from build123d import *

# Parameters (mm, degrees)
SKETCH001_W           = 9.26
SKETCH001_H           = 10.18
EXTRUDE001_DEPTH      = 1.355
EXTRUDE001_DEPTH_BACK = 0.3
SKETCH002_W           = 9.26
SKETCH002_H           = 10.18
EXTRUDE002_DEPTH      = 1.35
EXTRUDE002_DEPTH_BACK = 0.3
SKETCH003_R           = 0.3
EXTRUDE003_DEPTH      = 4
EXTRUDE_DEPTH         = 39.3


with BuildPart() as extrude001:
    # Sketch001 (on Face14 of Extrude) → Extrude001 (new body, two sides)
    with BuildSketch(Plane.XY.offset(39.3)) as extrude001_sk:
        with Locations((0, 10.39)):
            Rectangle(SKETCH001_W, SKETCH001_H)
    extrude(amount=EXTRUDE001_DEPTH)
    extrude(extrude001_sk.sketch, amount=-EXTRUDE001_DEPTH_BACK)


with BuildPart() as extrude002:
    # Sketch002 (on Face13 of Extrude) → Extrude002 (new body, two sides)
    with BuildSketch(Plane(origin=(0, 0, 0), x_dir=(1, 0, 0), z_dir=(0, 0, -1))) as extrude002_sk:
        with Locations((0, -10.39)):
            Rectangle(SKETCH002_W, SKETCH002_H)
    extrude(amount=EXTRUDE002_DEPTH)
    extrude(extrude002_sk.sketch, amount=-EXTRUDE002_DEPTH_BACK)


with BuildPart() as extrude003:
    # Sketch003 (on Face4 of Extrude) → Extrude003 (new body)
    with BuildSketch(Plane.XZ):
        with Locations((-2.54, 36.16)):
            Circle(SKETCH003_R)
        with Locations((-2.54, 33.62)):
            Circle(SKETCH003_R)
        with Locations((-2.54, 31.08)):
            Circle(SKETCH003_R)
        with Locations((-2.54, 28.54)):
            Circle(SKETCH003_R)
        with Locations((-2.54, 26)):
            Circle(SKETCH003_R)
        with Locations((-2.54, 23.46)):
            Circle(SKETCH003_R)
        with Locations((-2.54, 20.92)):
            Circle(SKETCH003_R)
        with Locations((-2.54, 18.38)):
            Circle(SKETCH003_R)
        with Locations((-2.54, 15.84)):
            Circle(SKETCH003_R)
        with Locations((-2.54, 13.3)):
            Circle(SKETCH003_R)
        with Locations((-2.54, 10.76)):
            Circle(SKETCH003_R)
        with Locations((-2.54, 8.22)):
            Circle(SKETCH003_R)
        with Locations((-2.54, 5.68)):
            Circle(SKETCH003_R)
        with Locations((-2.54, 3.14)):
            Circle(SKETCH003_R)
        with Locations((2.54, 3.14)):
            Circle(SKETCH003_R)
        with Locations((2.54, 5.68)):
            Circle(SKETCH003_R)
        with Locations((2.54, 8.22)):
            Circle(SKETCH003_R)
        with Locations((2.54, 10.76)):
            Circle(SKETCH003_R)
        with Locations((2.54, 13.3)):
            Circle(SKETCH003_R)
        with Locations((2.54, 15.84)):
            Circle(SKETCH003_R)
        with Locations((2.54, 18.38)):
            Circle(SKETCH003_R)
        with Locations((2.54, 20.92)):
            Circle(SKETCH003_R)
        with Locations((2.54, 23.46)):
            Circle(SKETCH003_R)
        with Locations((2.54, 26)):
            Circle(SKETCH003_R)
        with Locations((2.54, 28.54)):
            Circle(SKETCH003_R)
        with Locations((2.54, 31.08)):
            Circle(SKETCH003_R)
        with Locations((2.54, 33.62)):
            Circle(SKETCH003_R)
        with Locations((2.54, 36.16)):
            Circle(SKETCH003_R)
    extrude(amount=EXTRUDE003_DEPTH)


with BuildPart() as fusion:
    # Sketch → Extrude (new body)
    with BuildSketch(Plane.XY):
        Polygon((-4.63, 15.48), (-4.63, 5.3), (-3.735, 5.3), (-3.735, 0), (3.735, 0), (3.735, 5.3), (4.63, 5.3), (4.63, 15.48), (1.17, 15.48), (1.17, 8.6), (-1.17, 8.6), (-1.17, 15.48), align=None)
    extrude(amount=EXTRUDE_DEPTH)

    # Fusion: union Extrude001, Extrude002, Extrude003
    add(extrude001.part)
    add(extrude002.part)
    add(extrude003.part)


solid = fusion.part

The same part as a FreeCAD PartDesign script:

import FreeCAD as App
import Part
import Sketcher
from FreeCAD import Vector
Q = App.Units.Quantity

doc = App.newDocument("Part")
params = doc.addObject("Spreadsheet::Sheet", "Params")
for row, (alias, value) in enumerate([
    ("sketch1_width", "9.26 mm"),
    ("sketch1_height", "10.18 mm"),
    ("pad1_length", "1.355 mm"),
    ("pad1_length2", "0.3 mm"),
    ("sketch2_width", "9.26 mm"),
    ("sketch2_height", "10.18 mm"),
    ("pad2_length", "1.35 mm"),
    ("pad2_length2", "0.3 mm"),
    ("sketch3_diameter", "0.6 mm"),
    ("pad3_length", "4 mm"),
    ("sketch4_height", "5.3 mm"),
    ("sketch4_width", "7.47 mm"),
    ("sketch4_width2", "3.46 mm"),
    ("sketch4_width3", "2.34 mm"),
    ("sketch4_height2", "10.18 mm"),
    ("pad4_length", "39.3 mm"),
], start=1):
    params.set(f"A{row}", alias)
    params.set(f"B{row}", "=" + value)
    params.setAlias(f"B{row}", alias)

body = doc.addObject("PartDesign::Body", "Body")

# Sketch on XY plane
sketch1 = body.newObject("Sketcher::SketchObject", "Sketch")
sketch1.AttachmentSupport = (doc.getObject("XY_Plane"), [""])
sketch1.MapMode = "FlatFace"
sketch1.AttachmentOffset = App.Placement(Vector(0, 0, 39.3), App.Rotation())
sketch1.addGeometry([
    Part.LineSegment(Vector(-5, 15, 0), Vector(-5, 5, 0)),
    Part.LineSegment(Vector(-5, 5, 0), Vector(5, 5, 0)),
    Part.LineSegment(Vector(5, 5, 0), Vector(5, 15, 0)),
    Part.LineSegment(Vector(5, 15, 0), Vector(-5, 15, 0)),
], False)
sketch1.addConstraint([
    Sketcher.Constraint("Coincident", 0, 2, 1, 1),
    Sketcher.Constraint("Coincident", 1, 2, 2, 1),
    Sketcher.Constraint("Coincident", 2, 2, 3, 1),
    Sketcher.Constraint("Coincident", 3, 2, 0, 1),
    Sketcher.Constraint("Vertical", 0),
    Sketcher.Constraint("Horizontal", 1),
    Sketcher.Constraint("Vertical", 2),
    Sketcher.Constraint("Horizontal", 3),
    Sketcher.Constraint("DistanceX", 1, 1, 1, 2, Q("9.26 mm")),
    Sketcher.Constraint("DistanceY", 0, 2, 0, 1, Q("10.18 mm")),
    Sketcher.Constraint("DistanceY", -1, 1, 0, 2, Q("5.3 mm")),
    Sketcher.Constraint("DistanceX", 0, 2, -1, 1, Q("4.63 mm")),
])
sketch1.setExpression("Constraints[8]", "Params.sketch1_width")
sketch1.setExpression("Constraints[9]", "Params.sketch1_height")
pad1 = body.newObject("PartDesign::Pad", "Pad")
pad1.Profile = sketch1
pad1.Type = "TwoLengths"
pad1.setExpression("Length", "Params.pad1_length")
pad1.setExpression("Length2", "Params.pad1_length2")
body2 = doc.addObject("PartDesign::Body", "Body001")

# Sketch on XY plane
sketch2 = body2.newObject("Sketcher::SketchObject", "Sketch001")
sketch2.AttachmentSupport = (doc.getObject("XY_Plane001"), [""])
sketch2.MapMode = "FlatFace"
sketch2.addGeometry([
    Part.LineSegment(Vector(-5, 5, 0), Vector(-5, 15, 0)),
    Part.LineSegment(Vector(-5, 15, 0), Vector(5, 15, 0)),
    Part.LineSegment(Vector(5, 15, 0), Vector(5, 5, 0)),
    Part.LineSegment(Vector(5, 5, 0), Vector(-5, 5, 0)),
], False)
sketch2.addConstraint([
    Sketcher.Constraint("Coincident", 0, 2, 1, 1),
    Sketcher.Constraint("Coincident", 1, 2, 2, 1),
    Sketcher.Constraint("Coincident", 2, 2, 3, 1),
    Sketcher.Constraint("Coincident", 3, 2, 0, 1),
    Sketcher.Constraint("Vertical", 0),
    Sketcher.Constraint("Horizontal", 1),
    Sketcher.Constraint("Vertical", 2),
    Sketcher.Constraint("Horizontal", 3),
    Sketcher.Constraint("DistanceX", 1, 1, 1, 2, Q("9.26 mm")),
    Sketcher.Constraint("DistanceY", 0, 1, 0, 2, Q("10.18 mm")),
    Sketcher.Constraint("DistanceY", -1, 1, 2, 2, Q("5.3 mm")),
    Sketcher.Constraint("DistanceX", 0, 2, -1, 1, Q("4.63 mm")),
])
sketch2.setExpression("Constraints[8]", "Params.sketch2_width")
sketch2.setExpression("Constraints[9]", "Params.sketch2_height")
pad2 = body2.newObject("PartDesign::Pad", "Pad001")
pad2.Profile = sketch2
pad2.Type = "TwoLengths"
pad2.setExpression("Length", "Params.pad2_length")
pad2.setExpression("Length2", "Params.pad2_length2")
pad2.Reversed = True
body3 = doc.addObject("PartDesign::Body", "Body002")
body3.AllowCompound = True

# Sketch on XZ plane
sketch3 = body3.newObject("Sketcher::SketchObject", "Sketch002")
sketch3.AttachmentSupport = (doc.getObject("XZ_Plane002"), [""])
sketch3.MapMode = "FlatFace"
sketch3.addGeometry([
    Part.Circle(Vector(-2.54, 36.16, 0), Vector(0, 0, 1), 0.3),  # 0
    Part.Circle(Vector(-2.54, 33.62, 0), Vector(0, 0, 1), 0.3),  # 1
    Part.Circle(Vector(-2.54, 31.08, 0), Vector(0, 0, 1), 0.3),  # 2
    Part.Circle(Vector(-2.54, 28.54, 0), Vector(0, 0, 1), 0.3),  # 3
    Part.Circle(Vector(-2.54, 26, 0), Vector(0, 0, 1), 0.3),  # 4
    Part.Circle(Vector(-2.54, 23.46, 0), Vector(0, 0, 1), 0.3),  # 5
    Part.Circle(Vector(-2.54, 20.92, 0), Vector(0, 0, 1), 0.3),  # 6
    Part.Circle(Vector(-2.54, 18.38, 0), Vector(0, 0, 1), 0.3),  # 7
    Part.Circle(Vector(-2.54, 15.84, 0), Vector(0, 0, 1), 0.3),  # 8
    Part.Circle(Vector(-2.54, 13.3, 0), Vector(0, 0, 1), 0.3),  # 9
    Part.Circle(Vector(-2.54, 10.76, 0), Vector(0, 0, 1), 0.3),  # 10
    Part.Circle(Vector(-2.54, 8.22, 0), Vector(0, 0, 1), 0.3),  # 11
    Part.Circle(Vector(-2.54, 5.68, 0), Vector(0, 0, 1), 0.3),  # 12
    Part.Circle(Vector(-2.54, 3.14, 0), Vector(0, 0, 1), 0.3),  # 13
    Part.Circle(Vector(2.54, 3.14, 0), Vector(0, 0, 1), 0.3),  # 14
    Part.Circle(Vector(2.54, 5.68, 0), Vector(0, 0, 1), 0.3),  # 15
    Part.Circle(Vector(2.54, 8.22, 0), Vector(0, 0, 1), 0.3),  # 16
    Part.Circle(Vector(2.54, 10.76, 0), Vector(0, 0, 1), 0.3),  # 17
    Part.Circle(Vector(2.54, 13.3, 0), Vector(0, 0, 1), 0.3),  # 18
    Part.Circle(Vector(2.54, 15.84, 0), Vector(0, 0, 1), 0.3),  # 19
    Part.Circle(Vector(2.54, 18.38, 0), Vector(0, 0, 1), 0.3),  # 20
    Part.Circle(Vector(2.54, 20.92, 0), Vector(0, 0, 1), 0.3),  # 21
    Part.Circle(Vector(2.54, 23.46, 0), Vector(0, 0, 1), 0.3),  # 22
    Part.Circle(Vector(2.54, 26, 0), Vector(0, 0, 1), 0.3),  # 23
    Part.Circle(Vector(2.54, 28.54, 0), Vector(0, 0, 1), 0.3),  # 24
    Part.Circle(Vector(2.54, 31.08, 0), Vector(0, 0, 1), 0.3),  # 25
    Part.Circle(Vector(2.54, 33.62, 0), Vector(0, 0, 1), 0.3),  # 26
    Part.Circle(Vector(2.54, 36.16, 0), Vector(0, 0, 1), 0.3),  # 27
], False)
sketch3.addConstraint([
    Sketcher.Constraint("Equal", 0, 1),
    Sketcher.Constraint("Equal", 1, 2),
    Sketcher.Constraint("Equal", 2, 3),
    Sketcher.Constraint("Equal", 3, 4),
    Sketcher.Constraint("Equal", 4, 5),
    Sketcher.Constraint("Equal", 5, 6),
    Sketcher.Constraint("Equal", 6, 7),
    Sketcher.Constraint("Equal", 7, 8),
    Sketcher.Constraint("Equal", 8, 9),
    Sketcher.Constraint("Equal", 9, 10),
    Sketcher.Constraint("Equal", 10, 11),
    Sketcher.Constraint("Equal", 11, 12),
    Sketcher.Constraint("Equal", 12, 13),
    Sketcher.Constraint("Equal", 13, 14),
    Sketcher.Constraint("Equal", 14, 15),
    Sketcher.Constraint("Equal", 15, 16),
    Sketcher.Constraint("Equal", 16, 17),
    Sketcher.Constraint("Equal", 17, 18),
    Sketcher.Constraint("Equal", 18, 19),
    Sketcher.Constraint("Equal", 19, 20),
    Sketcher.Constraint("Equal", 20, 21),
    Sketcher.Constraint("Equal", 21, 22),
    Sketcher.Constraint("Equal", 22, 23),
    Sketcher.Constraint("Equal", 23, 24),
    Sketcher.Constraint("Equal", 24, 25),
    Sketcher.Constraint("Equal", 25, 26),
    Sketcher.Constraint("Equal", 26, 27),
    Sketcher.Constraint("Symmetric", 13, 3, 14, 3, -2),
    Sketcher.Constraint("Symmetric", 12, 3, 15, 3, -2),
    Sketcher.Constraint("Symmetric", 11, 3, 16, 3, -2),
    Sketcher.Constraint("Symmetric", 10, 3, 17, 3, -2),
    Sketcher.Constraint("Symmetric", 9, 3, 18, 3, -2),
    Sketcher.Constraint("Symmetric", 8, 3, 19, 3, -2),
    Sketcher.Constraint("Symmetric", 7, 3, 20, 3, -2),
    Sketcher.Constraint("Symmetric", 6, 3, 21, 3, -2),
    Sketcher.Constraint("Symmetric", 5, 3, 22, 3, -2),
    Sketcher.Constraint("Symmetric", 4, 3, 23, 3, -2),
    Sketcher.Constraint("Symmetric", 3, 3, 24, 3, -2),
    Sketcher.Constraint("Symmetric", 2, 3, 25, 3, -2),
    Sketcher.Constraint("Symmetric", 1, 3, 26, 3, -2),
    Sketcher.Constraint("Symmetric", 0, 3, 27, 3, -2),
    Sketcher.Constraint("Vertical", 0, 3, 1, 3),
    Sketcher.Constraint("Vertical", 1, 3, 2, 3),
    Sketcher.Constraint("Vertical", 2, 3, 3, 3),
    Sketcher.Constraint("Vertical", 3, 3, 4, 3),
    Sketcher.Constraint("Vertical", 4, 3, 5, 3),
    Sketcher.Constraint("Vertical", 5, 3, 6, 3),
    Sketcher.Constraint("Vertical", 6, 3, 7, 3),
    Sketcher.Constraint("Vertical", 7, 3, 8, 3),
    Sketcher.Constraint("Vertical", 8, 3, 9, 3),
    Sketcher.Constraint("Vertical", 9, 3, 10, 3),
    Sketcher.Constraint("Vertical", 10, 3, 11, 3),
    Sketcher.Constraint("Vertical", 11, 3, 12, 3),
    Sketcher.Constraint("Vertical", 12, 3, 13, 3),
    Sketcher.Constraint("Diameter", 0, Q("0.6 mm")),
    Sketcher.Constraint("DistanceY", -1, 1, 4, 3, Q("26 mm")),
    Sketcher.Constraint("DistanceY", -1, 1, 9, 3, Q("13.3 mm")),
    Sketcher.Constraint("DistanceY", 5, 3, 0, 3, Q("12.7 mm")),
    Sketcher.Constraint("DistanceY", 6, 3, 1, 3, Q("12.7 mm")),
    Sketcher.Constraint("DistanceY", 7, 3, 2, 3, Q("12.7 mm")),
    Sketcher.Constraint("DistanceY", 8, 3, 3, 3, Q("12.7 mm")),
    Sketcher.Constraint("DistanceY", 10, 3, 5, 3, Q("12.7 mm")),
    Sketcher.Constraint("DistanceY", 11, 3, 6, 3, Q("12.7 mm")),
    Sketcher.Constraint("DistanceY", 12, 3, 7, 3, Q("12.7 mm")),
    Sketcher.Constraint("DistanceY", 13, 3, 8, 3, Q("12.7 mm")),
    Sketcher.Constraint("DistanceX", 0, 3, -1, 1, Q("2.54 mm")),
    Sketcher.Constraint("DistanceY", -1, 1, 0, 3, Q("36.16 mm")),
    Sketcher.Constraint("DistanceY", -1, 1, 1, 3, Q("33.62 mm")),
    Sketcher.Constraint("DistanceY", -1, 1, 2, 3, Q("31.08 mm")),
    Sketcher.Constraint("DistanceY", -1, 1, 3, 3, Q("28.54 mm")),
])
sketch3.setExpression("Constraints[54]", "Params.sketch3_diameter")
pad3 = body3.newObject("PartDesign::Pad", "Pad002")
pad3.Profile = sketch3
pad3.setExpression("Length", "Params.pad3_length")
body4 = doc.addObject("PartDesign::Body", "Body003")

# Sketch on XY plane
sketch4 = body4.newObject("Sketcher::SketchObject", "Sketch003")
sketch4.AttachmentSupport = (doc.getObject("XY_Plane003"), [""])
sketch4.MapMode = "FlatFace"
sketch4.addGeometry([
    Part.LineSegment(Vector(-4.6, 15.5, 0), Vector(-4.6, 5.3, 0)),  # 0
    Part.LineSegment(Vector(-4.6, 5.3, 0), Vector(-3.7, 5.3, 0)),  # 1
    Part.LineSegment(Vector(-3.7, 5.3, 0), Vector(-3.7, 0, 0)),  # 2
    Part.LineSegment(Vector(-3.7, 0, 0), Vector(3.7, 0, 0)),  # 3
    Part.LineSegment(Vector(3.7, 0, 0), Vector(3.7, 5.3, 0)),  # 4
    Part.LineSegment(Vector(3.7, 5.3, 0), Vector(4.6, 5.3, 0)),  # 5
    Part.LineSegment(Vector(4.6, 5.3, 0), Vector(4.6, 15.5, 0)),  # 6
    Part.LineSegment(Vector(4.6, 15.5, 0), Vector(1.2, 15.5, 0)),  # 7
    Part.LineSegment(Vector(1.2, 15.5, 0), Vector(1.2, 8.6, 0)),  # 8
    Part.LineSegment(Vector(1.2, 8.6, 0), Vector(-1.2, 8.6, 0)),  # 9
    Part.LineSegment(Vector(-1.2, 8.6, 0), Vector(-1.2, 15.5, 0)),  # 10
    Part.LineSegment(Vector(-1.2, 15.5, 0), Vector(-4.6, 15.5, 0)),  # 11
], False)
sketch4.addConstraint([
    Sketcher.Constraint("Coincident", 0, 2, 1, 1),
    Sketcher.Constraint("Coincident", 1, 2, 2, 1),
    Sketcher.Constraint("Coincident", 2, 2, 3, 1),
    Sketcher.Constraint("Coincident", 3, 2, 4, 1),
    Sketcher.Constraint("Coincident", 4, 2, 5, 1),
    Sketcher.Constraint("Coincident", 5, 2, 6, 1),
    Sketcher.Constraint("Coincident", 6, 2, 7, 1),
    Sketcher.Constraint("Coincident", 7, 2, 8, 1),
    Sketcher.Constraint("Coincident", 8, 2, 9, 1),
    Sketcher.Constraint("Coincident", 9, 2, 10, 1),
    Sketcher.Constraint("Coincident", 10, 2, 11, 1),
    Sketcher.Constraint("Coincident", 11, 2, 0, 1),
    Sketcher.Constraint("Vertical", 0),
    Sketcher.Constraint("Horizontal", 1),
    Sketcher.Constraint("Vertical", 2),
    Sketcher.Constraint("Horizontal", 3),
    Sketcher.Constraint("Vertical", 4),
    Sketcher.Constraint("Horizontal", 5),
    Sketcher.Constraint("Vertical", 6),
    Sketcher.Constraint("Horizontal", 7),
    Sketcher.Constraint("Vertical", 8),
    Sketcher.Constraint("Horizontal", 9),
    Sketcher.Constraint("Vertical", 10),
    Sketcher.Constraint("Horizontal", 11),
    Sketcher.Constraint("Symmetric", 2, 2, 3, 2, -1, 1),
    Sketcher.Constraint("Symmetric", 0, 2, 5, 2, -2),
    Sketcher.Constraint("Symmetric", 7, 2, 10, 2, -2),
    Sketcher.Constraint("DistanceY", 2, 2, 2, 1, Q("5.3 mm")),
    Sketcher.Constraint("DistanceX", 3, 1, 3, 2, Q("7.47 mm")),
    Sketcher.Constraint("DistanceX", 7, 2, 7, 1, Q("3.46 mm")),
    Sketcher.Constraint("DistanceX", 9, 2, 9, 1, Q("2.34 mm")),
    Sketcher.Constraint("DistanceY", 0, 2, 0, 1, Q("10.18 mm")),
    Sketcher.Constraint("DistanceY", 8, 2, 8, 1, Q("6.88 mm")),
])
sketch4.setExpression("Constraints[27]", "Params.sketch4_height")
sketch4.setExpression("Constraints[28]", "Params.sketch4_width")
sketch4.setExpression("Constraints[29]", "Params.sketch4_width2")
sketch4.setExpression("Constraints[30]", "Params.sketch4_width3")
sketch4.setExpression("Constraints[31]", "Params.sketch4_height2")
pad4 = body4.newObject("PartDesign::Pad", "Pad003")
pad4.Profile = sketch4
pad4.setExpression("Length", "Params.pad4_length")
doc.recompute()

boolean = body4.newObject("PartDesign::Boolean", "Boolean")
boolean.Type = "Fuse"
boolean.addObjects([body])
doc.recompute()

boolean2 = body4.newObject("PartDesign::Boolean", "Boolean001")
boolean2.Type = "Fuse"
boolean2.addObjects([body2])
doc.recompute()

boolean3 = body4.newObject("PartDesign::Boolean", "Boolean002")
boolean3.Type = "Fuse"
boolean3.addObjects([body3])

doc.recompute()
